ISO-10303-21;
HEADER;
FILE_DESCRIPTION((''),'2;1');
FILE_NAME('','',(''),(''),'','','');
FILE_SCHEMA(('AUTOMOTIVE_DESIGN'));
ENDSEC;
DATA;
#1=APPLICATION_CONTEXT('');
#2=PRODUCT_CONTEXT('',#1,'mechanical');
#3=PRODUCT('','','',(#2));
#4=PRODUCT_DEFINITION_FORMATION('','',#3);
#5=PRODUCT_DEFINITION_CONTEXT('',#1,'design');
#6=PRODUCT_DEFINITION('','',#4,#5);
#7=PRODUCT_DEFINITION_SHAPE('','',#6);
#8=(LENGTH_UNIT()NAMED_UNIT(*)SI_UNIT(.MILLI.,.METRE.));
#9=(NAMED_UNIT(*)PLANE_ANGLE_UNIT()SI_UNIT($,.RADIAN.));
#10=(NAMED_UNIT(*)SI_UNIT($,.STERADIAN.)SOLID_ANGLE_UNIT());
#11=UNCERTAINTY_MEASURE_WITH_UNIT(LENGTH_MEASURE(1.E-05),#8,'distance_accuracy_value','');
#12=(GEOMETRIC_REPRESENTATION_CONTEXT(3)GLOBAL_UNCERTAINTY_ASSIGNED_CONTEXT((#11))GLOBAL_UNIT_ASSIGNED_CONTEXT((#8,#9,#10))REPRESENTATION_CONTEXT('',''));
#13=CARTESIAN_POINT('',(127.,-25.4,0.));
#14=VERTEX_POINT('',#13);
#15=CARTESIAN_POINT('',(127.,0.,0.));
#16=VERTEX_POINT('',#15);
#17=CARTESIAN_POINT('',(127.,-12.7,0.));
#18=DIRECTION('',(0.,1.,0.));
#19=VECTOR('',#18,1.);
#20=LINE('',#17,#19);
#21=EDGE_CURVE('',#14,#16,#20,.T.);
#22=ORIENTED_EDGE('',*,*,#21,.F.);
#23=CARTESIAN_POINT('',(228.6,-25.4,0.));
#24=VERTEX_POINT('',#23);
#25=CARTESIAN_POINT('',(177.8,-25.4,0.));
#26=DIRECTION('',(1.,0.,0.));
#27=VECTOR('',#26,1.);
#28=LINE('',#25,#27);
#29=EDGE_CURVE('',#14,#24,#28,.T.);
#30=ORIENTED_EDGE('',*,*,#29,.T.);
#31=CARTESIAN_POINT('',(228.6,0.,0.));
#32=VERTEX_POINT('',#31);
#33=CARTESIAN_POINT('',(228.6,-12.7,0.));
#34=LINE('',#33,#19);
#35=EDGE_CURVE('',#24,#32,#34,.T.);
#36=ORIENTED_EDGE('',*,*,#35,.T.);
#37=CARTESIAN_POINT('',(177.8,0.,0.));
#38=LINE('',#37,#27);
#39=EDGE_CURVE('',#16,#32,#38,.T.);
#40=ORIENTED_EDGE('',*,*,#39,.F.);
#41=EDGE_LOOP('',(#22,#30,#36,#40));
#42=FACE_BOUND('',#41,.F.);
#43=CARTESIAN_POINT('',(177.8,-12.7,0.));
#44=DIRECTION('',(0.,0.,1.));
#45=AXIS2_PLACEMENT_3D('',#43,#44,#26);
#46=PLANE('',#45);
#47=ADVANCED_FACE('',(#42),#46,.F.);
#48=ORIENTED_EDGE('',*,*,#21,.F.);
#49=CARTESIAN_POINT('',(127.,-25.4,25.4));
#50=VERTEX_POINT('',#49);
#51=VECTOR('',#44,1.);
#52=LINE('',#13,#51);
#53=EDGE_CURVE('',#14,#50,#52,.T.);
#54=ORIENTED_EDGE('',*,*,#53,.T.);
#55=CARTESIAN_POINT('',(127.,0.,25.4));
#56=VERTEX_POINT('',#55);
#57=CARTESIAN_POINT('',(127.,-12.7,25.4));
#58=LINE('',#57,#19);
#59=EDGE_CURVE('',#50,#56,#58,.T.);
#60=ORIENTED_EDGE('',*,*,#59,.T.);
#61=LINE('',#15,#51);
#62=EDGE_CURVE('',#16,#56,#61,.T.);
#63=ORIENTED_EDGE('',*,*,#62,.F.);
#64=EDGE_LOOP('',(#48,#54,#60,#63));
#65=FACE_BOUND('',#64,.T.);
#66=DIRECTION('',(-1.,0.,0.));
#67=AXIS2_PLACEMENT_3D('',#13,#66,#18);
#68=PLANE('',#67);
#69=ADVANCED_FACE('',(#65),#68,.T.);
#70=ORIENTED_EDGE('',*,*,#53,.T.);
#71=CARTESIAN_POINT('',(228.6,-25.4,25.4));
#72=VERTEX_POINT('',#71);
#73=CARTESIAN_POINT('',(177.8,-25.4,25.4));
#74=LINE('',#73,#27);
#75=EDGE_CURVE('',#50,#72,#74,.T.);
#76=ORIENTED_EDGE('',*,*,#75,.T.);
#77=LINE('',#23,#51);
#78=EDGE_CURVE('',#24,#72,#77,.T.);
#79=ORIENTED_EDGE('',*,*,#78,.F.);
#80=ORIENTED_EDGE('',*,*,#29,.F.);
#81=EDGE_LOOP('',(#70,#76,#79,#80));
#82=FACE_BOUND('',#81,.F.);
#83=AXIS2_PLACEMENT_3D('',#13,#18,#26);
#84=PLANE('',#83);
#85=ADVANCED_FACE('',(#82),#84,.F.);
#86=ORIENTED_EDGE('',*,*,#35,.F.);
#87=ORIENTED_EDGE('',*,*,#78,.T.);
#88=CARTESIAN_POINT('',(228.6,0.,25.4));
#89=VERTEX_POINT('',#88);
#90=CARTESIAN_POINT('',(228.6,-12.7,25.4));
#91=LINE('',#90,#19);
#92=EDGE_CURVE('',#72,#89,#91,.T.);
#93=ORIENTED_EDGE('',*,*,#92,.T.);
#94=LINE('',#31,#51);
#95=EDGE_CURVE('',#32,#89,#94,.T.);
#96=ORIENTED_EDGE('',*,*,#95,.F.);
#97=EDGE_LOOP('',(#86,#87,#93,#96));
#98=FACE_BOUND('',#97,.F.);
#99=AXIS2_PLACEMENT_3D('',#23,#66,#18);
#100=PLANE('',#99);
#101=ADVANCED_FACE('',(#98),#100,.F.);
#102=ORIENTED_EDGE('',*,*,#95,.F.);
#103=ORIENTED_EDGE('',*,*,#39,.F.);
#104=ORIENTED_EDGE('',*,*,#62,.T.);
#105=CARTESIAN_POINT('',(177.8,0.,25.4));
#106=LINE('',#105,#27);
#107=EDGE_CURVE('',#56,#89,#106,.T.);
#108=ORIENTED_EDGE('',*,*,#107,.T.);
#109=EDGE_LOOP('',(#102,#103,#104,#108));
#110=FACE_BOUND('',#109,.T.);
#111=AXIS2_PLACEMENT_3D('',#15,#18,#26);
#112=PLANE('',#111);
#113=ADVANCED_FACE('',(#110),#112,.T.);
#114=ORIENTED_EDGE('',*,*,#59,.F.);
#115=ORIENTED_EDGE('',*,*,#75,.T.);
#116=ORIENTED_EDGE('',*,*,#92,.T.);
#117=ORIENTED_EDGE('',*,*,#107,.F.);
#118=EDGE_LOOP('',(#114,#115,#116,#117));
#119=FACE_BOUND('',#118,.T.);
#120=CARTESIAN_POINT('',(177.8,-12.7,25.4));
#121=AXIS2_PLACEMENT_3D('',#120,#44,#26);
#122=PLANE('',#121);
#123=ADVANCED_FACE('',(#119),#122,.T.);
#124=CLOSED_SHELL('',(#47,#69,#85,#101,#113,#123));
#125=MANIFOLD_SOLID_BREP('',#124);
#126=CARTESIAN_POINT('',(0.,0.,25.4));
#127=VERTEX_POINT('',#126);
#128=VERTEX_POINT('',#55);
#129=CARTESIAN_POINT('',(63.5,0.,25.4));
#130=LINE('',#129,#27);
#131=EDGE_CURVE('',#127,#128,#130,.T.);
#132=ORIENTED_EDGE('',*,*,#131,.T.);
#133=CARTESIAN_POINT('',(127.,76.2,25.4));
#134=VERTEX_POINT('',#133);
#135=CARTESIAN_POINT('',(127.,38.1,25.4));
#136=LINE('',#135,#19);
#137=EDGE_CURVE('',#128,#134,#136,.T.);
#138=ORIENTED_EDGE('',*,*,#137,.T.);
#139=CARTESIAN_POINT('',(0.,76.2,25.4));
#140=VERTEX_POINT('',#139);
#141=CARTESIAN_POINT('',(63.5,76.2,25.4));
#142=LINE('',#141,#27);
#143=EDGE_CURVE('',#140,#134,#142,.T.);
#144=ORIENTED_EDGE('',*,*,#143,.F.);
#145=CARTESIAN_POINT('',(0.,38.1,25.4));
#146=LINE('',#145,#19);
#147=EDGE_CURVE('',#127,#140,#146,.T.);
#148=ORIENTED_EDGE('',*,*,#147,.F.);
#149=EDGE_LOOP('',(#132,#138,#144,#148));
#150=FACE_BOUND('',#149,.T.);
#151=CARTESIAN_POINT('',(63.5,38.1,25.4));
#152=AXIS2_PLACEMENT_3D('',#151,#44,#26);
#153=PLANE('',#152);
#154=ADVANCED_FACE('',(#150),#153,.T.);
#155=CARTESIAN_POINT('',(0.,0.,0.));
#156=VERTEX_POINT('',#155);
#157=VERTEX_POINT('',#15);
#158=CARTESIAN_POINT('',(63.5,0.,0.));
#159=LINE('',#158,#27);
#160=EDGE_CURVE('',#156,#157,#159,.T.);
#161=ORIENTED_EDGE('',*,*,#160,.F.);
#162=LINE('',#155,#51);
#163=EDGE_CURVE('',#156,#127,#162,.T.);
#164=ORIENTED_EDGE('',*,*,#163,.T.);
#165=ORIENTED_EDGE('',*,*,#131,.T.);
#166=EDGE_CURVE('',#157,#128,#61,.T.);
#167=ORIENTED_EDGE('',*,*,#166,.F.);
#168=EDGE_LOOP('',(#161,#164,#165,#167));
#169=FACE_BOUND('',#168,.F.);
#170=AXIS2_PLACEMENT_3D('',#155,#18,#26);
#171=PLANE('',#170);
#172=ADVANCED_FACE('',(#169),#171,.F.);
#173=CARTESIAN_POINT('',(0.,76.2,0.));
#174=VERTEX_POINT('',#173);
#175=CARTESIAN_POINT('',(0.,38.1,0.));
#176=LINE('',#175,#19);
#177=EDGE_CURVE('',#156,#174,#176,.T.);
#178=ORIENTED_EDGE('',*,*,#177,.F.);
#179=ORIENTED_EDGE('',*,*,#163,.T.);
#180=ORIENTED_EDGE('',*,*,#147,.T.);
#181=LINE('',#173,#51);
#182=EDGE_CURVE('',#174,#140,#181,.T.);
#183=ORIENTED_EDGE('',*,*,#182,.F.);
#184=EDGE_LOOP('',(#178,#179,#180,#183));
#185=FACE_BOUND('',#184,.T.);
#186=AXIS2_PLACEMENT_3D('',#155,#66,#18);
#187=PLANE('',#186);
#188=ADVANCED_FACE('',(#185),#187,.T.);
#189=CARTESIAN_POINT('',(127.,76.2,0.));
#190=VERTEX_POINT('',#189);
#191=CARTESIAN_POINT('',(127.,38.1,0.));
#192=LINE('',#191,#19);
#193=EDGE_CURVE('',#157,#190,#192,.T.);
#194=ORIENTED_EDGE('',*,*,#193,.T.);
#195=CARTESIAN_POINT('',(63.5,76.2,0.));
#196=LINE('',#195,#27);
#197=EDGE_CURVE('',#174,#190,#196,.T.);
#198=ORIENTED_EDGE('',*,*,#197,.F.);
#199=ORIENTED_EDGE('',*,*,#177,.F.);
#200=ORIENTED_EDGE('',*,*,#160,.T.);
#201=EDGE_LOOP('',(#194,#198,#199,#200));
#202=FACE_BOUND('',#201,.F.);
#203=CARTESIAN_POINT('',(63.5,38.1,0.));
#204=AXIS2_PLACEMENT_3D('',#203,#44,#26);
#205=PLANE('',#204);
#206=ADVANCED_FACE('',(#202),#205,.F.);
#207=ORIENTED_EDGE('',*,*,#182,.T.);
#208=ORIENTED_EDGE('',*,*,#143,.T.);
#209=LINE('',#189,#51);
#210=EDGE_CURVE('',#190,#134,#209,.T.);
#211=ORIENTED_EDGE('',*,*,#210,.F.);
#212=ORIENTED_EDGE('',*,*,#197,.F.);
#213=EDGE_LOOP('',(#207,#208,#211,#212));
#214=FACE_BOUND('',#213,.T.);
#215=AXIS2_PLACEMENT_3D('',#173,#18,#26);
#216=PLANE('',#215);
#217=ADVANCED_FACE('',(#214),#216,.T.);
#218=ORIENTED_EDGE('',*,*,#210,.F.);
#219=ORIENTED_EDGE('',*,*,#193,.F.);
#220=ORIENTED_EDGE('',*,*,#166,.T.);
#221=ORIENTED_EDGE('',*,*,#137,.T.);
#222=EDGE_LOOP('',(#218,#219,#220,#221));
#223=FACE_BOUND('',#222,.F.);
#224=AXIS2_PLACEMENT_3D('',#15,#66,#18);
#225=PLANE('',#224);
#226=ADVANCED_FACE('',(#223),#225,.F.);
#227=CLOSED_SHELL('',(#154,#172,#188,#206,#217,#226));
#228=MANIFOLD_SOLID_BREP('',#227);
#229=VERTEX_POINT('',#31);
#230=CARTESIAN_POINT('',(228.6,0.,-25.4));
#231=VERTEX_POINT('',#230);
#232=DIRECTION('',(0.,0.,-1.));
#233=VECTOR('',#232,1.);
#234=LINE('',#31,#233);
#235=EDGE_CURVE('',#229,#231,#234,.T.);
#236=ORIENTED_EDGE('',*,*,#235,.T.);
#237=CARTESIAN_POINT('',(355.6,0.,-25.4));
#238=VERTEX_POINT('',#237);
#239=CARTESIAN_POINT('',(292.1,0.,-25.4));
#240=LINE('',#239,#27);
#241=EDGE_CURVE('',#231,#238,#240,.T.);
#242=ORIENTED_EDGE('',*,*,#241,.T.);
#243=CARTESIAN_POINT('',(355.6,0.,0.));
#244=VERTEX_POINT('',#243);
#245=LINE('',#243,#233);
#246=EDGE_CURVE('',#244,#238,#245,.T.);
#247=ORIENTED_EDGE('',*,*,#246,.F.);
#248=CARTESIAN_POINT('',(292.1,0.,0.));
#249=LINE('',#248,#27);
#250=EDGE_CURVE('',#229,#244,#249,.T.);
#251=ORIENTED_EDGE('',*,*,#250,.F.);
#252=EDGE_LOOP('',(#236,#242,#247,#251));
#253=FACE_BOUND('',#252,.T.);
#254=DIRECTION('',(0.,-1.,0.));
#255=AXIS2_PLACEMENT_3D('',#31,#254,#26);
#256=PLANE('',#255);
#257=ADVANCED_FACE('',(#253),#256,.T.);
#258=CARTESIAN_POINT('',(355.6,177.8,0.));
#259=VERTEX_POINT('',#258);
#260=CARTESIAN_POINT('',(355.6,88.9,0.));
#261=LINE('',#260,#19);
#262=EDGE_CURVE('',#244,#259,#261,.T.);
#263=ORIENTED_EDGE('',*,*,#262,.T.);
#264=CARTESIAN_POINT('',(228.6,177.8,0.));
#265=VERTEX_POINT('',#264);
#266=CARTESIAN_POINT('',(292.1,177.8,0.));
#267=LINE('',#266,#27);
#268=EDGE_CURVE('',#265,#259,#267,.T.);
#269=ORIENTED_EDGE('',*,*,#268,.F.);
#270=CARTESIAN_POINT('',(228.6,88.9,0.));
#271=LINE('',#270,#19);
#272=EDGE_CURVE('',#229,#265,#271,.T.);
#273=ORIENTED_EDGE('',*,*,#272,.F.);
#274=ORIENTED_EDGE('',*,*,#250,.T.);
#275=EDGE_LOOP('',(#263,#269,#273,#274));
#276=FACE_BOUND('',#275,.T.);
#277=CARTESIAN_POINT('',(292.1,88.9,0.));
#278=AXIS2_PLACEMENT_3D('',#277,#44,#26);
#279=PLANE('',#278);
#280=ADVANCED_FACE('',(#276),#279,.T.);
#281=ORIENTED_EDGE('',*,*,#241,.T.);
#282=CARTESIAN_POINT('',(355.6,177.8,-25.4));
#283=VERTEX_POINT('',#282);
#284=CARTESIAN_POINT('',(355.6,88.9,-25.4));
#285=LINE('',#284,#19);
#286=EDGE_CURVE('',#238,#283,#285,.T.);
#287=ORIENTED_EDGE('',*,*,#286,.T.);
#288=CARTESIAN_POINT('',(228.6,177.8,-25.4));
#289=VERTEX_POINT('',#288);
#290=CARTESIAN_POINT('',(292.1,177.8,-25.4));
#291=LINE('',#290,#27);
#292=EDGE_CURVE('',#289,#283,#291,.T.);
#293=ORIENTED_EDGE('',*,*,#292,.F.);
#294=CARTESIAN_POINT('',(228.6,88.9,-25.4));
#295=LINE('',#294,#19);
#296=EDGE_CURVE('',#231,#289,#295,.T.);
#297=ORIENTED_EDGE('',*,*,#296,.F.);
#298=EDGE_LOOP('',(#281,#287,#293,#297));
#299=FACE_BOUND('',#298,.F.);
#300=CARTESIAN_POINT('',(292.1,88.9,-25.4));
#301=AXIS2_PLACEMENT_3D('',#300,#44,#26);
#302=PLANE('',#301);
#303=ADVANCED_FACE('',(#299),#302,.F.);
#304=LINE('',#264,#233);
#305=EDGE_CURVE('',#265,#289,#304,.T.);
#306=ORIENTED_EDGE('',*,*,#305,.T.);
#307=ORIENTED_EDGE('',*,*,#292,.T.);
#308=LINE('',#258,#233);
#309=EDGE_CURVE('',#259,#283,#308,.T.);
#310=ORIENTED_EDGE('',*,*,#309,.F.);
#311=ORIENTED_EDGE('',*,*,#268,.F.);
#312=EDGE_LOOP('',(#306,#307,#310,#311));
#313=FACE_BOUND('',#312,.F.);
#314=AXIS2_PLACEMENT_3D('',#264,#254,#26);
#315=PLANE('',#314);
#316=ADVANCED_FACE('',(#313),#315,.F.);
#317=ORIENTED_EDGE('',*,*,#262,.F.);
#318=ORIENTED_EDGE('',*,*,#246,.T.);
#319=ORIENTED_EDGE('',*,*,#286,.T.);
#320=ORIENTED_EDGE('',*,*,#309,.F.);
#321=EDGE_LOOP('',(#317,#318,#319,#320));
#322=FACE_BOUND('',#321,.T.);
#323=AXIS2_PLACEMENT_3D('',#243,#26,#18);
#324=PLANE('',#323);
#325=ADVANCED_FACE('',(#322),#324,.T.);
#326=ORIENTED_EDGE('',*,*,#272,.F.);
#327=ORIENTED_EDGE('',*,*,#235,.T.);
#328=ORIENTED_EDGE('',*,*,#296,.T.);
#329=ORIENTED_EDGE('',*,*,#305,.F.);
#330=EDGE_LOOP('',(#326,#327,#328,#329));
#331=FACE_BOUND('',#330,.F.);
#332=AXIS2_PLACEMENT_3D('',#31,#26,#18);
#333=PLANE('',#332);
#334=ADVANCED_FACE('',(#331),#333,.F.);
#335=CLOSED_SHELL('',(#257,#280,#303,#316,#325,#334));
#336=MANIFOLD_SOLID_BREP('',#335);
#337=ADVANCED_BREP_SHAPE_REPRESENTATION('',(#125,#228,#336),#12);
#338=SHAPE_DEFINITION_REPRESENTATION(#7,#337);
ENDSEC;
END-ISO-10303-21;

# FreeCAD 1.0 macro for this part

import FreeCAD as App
import Part
import Sketcher
from FreeCAD import Vector
Q = App.Units.Quantity


def add_polygon(sketch, points):
    """Adds a closed chain of lines whose ends are joined by coincident constraints."""
    first, n = sketch.GeometryCount, len(points)
    for a, b in zip(points, points[1:] + points[:1]):
        sketch.addGeometry(Part.LineSegment(App.Vector(*a, 0), App.Vector(*b, 0)), False)
    for i in range(n):
        sketch.addConstraint(Sketcher.Constraint("Coincident", first + i, 2, first + (i + 1) % n, 1))

doc = App.newDocument("Part")
params = doc.addObject("Spreadsheet::Sheet", "Params")
for row, (alias, value) in enumerate([
    ("sketch1_width", "5 in"),
    ("sketch1_width2", "4 in"),
    ("sketch1_height", "3 in"),
    ("sketch1_height2", "1 in"),
    ("pad1_length", "1 in"),
    ("sketch2_width", "5 in"),
    ("sketch2_height", "7 in"),
    ("pad2_length", "1 in"),
], start=1):
    params.set(f"A{row}", alias)
    params.set(f"B{row}", "=" + value)
    params.setAlias(f"B{row}", alias)

body = doc.addObject("PartDesign::Body", "Body")
body.AllowCompound = True

# Sketch on XY plane
sketch1 = body.newObject("Sketcher::SketchObject", "Sketch")
sketch1.AttachmentSupport = (doc.getObject("XY_Plane"), [""])
sketch1.MapMode = "FlatFace"
add_polygon(sketch1, [(0, 76.2), (0, 0), (127, 0), (127, 76.2)])  # lines 0-3
add_polygon(sketch1, [(127, 0), (127, -25.4), (228.6, -25.4), (228.6, 0)])  # lines 4-7
sketch1.addConstraint([
    Sketcher.Constraint("Vertical", 0),
    Sketcher.Constraint("Horizontal", 1),
    Sketcher.Constraint("Vertical", 2),
    Sketcher.Constraint("Horizontal", 3),
    Sketcher.Constraint("Vertical", 4),
    Sketcher.Constraint("Horizontal", 5),
    Sketcher.Constraint("Vertical", 6),
    Sketcher.Constraint("Horizontal", 7),
    Sketcher.Constraint("Coincident", 0, 2, -1, 1),
    Sketcher.Constraint("Coincident", 7, 2, 1, 2),
    Sketcher.Constraint("DistanceX", 1, 1, 1, 2, Q("5 in")),
    Sketcher.Constraint("DistanceX", 5, 1, 5, 2, Q("4 in")),
    Sketcher.Constraint("DistanceY", 0, 2, 0, 1, Q("3 in")),
    Sketcher.Constraint("DistanceY", 4, 2, 4, 1, Q("1 in")),
])
sketch1.setExpression("Constraints[18]", "Params.sketch1_width")
sketch1.setExpression("Constraints[19]", "Params.sketch1_width2")
sketch1.setExpression("Constraints[20]", "Params.sketch1_height")
sketch1.setExpression("Constraints[21]", "Params.sketch1_height2")
pad1 = body.newObject("PartDesign::Pad", "Pad")
pad1.Profile = sketch1
pad1.setExpression("Length", "Params.pad1_length")
body2 = doc.addObject("PartDesign::Body", "Body001")

# Sketch on XY plane
sketch2 = body2.newObject("Sketcher::SketchObject", "Sketch001")
sketch2.AttachmentSupport = (doc.getObject("XY_Plane001"), [""])
sketch2.MapMode = "FlatFace"
add_polygon(sketch2, [(228.6, 177.8), (228.6, 0), (355.6, 0), (355.6, 177.8)])  # lines 0-3
sketch2.addConstraint([
    Sketcher.Constraint("Vertical", 0),
    Sketcher.Constraint("Horizontal", 1),
    Sketcher.Constraint("Vertical", 2),
    Sketcher.Constraint("Horizontal", 3),
    Sketcher.Constraint("PointOnObject", 0, 2, -1),
    Sketcher.Constraint("DistanceX", 1, 1, 1, 2, Q("5 in")),
    Sketcher.Constraint("DistanceY", 0, 2, 0, 1, Q("7 in")),
    Sketcher.Constraint("DistanceX", -1, 1, 0, 2, Q("9 in")),
])
sketch2.setExpression("Constraints[9]", "Params.sketch2_width")
sketch2.setExpression("Constraints[10]", "Params.sketch2_height")
pad2 = body2.newObject("PartDesign::Pad", "Pad001")
pad2.Profile = sketch2
pad2.setExpression("Length", "Params.pad2_length")
pad2.Reversed = True

doc.recompute()
